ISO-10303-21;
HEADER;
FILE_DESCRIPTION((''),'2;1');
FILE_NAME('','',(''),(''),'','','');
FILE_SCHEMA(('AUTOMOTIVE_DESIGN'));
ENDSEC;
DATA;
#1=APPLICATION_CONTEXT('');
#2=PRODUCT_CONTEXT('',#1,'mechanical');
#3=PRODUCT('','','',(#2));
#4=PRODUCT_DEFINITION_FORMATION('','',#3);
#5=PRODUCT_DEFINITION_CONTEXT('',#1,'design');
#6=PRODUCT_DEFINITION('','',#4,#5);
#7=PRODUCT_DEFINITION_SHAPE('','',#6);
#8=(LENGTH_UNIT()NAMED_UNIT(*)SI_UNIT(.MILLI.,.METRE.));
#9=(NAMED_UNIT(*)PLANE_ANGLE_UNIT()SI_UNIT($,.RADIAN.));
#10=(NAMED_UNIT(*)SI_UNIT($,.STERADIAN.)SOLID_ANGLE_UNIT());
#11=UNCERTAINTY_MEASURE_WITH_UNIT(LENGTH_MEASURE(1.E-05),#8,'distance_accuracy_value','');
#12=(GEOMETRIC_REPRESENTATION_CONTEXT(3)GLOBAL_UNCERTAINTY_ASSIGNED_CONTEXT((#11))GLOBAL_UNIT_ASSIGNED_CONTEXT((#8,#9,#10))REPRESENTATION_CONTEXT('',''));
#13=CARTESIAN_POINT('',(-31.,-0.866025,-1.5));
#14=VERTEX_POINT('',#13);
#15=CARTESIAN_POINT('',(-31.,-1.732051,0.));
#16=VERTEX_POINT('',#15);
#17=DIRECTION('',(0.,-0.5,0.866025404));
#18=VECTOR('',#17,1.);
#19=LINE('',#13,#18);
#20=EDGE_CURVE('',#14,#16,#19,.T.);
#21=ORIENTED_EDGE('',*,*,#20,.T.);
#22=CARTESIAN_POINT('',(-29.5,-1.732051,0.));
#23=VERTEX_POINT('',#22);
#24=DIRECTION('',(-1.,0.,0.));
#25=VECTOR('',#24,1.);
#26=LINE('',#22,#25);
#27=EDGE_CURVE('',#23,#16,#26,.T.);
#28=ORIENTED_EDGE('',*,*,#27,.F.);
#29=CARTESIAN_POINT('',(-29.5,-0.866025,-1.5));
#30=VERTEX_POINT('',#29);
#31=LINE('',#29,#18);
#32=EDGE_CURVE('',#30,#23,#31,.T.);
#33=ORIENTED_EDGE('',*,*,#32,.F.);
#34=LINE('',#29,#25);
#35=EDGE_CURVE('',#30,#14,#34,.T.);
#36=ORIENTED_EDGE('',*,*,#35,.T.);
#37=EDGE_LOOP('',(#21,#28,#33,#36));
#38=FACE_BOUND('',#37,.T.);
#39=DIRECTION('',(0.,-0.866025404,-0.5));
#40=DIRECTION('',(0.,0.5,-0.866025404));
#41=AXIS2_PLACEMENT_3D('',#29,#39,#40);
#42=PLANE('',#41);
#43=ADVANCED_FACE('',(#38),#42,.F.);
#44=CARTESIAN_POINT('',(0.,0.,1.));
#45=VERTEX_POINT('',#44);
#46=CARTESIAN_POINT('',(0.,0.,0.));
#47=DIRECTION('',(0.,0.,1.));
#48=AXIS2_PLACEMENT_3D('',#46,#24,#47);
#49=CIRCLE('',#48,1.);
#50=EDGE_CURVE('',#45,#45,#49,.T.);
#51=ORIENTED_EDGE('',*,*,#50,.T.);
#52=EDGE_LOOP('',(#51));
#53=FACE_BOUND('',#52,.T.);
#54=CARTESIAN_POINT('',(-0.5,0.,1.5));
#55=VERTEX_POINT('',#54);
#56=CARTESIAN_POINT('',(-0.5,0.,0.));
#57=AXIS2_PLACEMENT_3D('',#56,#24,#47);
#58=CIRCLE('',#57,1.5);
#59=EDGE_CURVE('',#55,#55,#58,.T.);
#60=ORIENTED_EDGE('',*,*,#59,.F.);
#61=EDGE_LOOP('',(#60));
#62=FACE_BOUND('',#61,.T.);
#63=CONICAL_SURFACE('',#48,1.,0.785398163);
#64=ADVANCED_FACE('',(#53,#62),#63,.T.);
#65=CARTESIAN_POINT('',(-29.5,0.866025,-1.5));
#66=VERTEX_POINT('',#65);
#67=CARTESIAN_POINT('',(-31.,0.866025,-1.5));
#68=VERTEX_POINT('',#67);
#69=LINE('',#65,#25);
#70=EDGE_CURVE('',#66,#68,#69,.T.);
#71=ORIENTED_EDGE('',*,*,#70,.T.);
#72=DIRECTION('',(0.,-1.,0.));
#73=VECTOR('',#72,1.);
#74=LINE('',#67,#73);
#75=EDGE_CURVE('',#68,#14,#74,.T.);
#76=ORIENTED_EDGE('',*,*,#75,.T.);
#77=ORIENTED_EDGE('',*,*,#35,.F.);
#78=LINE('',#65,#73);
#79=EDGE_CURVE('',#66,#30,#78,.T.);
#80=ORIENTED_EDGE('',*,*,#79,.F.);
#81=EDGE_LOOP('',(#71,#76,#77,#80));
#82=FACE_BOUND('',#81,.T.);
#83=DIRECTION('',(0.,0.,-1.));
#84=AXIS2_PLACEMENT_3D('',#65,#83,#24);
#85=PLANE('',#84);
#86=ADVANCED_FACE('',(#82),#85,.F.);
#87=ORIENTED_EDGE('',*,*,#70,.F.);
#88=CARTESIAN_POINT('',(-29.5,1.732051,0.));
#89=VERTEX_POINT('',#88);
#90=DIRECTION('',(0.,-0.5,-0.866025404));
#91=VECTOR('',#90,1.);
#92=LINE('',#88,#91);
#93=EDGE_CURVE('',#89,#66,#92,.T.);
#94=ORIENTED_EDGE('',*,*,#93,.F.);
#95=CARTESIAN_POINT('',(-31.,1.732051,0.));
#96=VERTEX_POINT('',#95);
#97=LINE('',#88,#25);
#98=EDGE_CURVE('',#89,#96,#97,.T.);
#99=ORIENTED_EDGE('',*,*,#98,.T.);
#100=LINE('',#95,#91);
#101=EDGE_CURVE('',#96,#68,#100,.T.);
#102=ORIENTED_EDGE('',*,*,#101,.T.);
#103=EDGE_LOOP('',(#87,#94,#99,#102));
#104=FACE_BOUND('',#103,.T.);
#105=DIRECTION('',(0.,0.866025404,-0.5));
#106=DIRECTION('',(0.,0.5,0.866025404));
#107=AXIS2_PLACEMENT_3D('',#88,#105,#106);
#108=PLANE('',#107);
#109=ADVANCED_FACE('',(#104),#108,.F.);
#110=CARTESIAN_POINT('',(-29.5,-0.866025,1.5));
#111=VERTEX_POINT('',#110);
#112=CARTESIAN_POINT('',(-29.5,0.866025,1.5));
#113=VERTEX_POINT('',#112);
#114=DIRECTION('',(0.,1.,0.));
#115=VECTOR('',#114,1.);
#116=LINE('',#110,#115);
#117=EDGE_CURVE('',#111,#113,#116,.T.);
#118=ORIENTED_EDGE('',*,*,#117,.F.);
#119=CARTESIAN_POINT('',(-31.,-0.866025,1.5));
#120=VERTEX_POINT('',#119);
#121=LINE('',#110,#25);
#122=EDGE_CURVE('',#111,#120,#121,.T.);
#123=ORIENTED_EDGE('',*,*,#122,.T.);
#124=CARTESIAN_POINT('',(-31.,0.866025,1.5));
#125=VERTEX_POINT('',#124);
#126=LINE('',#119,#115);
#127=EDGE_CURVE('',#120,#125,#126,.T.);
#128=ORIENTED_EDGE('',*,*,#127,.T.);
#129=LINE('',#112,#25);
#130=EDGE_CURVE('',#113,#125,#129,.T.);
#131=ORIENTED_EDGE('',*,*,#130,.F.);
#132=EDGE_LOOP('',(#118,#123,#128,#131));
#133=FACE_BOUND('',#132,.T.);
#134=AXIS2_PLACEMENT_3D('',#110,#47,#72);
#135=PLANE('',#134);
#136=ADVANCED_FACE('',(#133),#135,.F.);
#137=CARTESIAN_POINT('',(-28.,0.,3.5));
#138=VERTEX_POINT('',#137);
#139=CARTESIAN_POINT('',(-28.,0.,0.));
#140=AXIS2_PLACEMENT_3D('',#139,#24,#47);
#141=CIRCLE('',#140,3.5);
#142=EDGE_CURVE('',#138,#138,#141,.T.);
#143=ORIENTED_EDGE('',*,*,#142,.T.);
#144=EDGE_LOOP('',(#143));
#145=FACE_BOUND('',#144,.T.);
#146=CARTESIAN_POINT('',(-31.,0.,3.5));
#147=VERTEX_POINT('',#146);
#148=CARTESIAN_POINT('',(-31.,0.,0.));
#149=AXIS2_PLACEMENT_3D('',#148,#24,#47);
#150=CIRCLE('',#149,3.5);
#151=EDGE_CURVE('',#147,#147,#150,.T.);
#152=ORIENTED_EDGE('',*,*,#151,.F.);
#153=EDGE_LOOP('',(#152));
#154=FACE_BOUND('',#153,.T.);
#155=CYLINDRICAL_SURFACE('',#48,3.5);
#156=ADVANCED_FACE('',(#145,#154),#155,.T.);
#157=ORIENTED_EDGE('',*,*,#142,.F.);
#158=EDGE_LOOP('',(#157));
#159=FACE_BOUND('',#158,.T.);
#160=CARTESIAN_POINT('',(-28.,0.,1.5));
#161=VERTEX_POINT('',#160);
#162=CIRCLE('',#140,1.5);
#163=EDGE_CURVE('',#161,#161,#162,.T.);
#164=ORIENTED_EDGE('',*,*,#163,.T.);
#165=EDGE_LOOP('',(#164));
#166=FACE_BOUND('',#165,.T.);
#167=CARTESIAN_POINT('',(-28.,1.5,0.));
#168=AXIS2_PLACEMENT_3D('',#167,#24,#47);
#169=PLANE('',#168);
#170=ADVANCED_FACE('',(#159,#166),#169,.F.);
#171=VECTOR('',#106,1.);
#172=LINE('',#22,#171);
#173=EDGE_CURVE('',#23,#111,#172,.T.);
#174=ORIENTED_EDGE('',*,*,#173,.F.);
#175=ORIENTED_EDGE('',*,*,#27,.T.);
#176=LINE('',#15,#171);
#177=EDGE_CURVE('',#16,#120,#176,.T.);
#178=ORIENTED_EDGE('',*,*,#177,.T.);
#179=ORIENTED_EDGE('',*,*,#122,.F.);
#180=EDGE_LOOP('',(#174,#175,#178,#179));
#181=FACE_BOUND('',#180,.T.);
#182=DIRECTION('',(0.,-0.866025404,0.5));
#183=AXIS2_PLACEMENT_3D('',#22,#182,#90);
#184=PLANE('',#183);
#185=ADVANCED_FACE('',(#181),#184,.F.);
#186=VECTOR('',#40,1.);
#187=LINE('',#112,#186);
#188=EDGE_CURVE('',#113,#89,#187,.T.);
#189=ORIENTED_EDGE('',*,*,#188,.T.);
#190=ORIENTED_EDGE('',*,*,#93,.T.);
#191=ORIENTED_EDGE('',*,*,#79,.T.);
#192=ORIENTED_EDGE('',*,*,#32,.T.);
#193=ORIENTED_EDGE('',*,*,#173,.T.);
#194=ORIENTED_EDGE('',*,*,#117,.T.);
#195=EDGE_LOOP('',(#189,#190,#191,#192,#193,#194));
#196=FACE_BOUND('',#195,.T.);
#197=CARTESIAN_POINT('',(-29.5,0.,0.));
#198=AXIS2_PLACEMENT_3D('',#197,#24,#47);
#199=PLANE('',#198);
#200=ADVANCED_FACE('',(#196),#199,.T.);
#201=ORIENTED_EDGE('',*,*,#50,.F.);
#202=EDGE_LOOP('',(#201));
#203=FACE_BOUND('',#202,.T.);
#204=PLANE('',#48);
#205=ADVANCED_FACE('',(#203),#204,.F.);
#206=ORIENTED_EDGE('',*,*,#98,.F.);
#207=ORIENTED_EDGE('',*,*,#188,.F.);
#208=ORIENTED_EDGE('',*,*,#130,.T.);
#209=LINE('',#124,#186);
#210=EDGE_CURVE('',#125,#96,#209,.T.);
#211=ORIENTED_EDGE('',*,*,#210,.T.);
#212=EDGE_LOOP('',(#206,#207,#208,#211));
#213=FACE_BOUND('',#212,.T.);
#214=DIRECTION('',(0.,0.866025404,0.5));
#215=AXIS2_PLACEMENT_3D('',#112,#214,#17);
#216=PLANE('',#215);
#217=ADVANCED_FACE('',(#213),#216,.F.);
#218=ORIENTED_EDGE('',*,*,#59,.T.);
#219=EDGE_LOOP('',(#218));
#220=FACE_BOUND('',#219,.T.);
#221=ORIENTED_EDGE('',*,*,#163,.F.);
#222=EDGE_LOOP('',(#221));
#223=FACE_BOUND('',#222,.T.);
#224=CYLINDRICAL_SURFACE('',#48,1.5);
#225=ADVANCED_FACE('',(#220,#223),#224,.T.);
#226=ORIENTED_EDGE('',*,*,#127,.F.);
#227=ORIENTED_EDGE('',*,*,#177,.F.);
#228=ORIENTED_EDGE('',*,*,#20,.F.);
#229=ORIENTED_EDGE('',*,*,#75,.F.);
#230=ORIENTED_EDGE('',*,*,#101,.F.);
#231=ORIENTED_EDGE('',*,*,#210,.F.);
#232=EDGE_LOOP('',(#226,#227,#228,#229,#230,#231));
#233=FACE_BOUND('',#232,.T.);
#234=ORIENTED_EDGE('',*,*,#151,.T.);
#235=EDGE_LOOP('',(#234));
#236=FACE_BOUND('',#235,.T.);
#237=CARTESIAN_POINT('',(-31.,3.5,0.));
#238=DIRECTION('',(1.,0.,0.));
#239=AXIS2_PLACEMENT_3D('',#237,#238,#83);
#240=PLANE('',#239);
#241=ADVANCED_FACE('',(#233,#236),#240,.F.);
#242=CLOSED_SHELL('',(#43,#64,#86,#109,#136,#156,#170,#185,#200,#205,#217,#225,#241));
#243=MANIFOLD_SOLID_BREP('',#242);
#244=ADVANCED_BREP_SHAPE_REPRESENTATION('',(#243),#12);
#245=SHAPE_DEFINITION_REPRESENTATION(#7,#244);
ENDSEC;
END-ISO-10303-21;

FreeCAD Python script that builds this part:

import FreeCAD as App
import Part
import Sketcher

V = App.Vector
Q = App.Units.Quantity

doc = App.newDocument("Part")
params = doc.addObject("Spreadsheet::Sheet", "Params")
for row, (alias, value) in enumerate([
    ("sketch1_width", "3 mm"),
    ("sketch1_width2", "31 mm"),
    ("sketch1_height", "1 mm"),
    ("sketch1_height2", "2 mm"),
    ("sketch1_width3", "27.5 mm"),
    ("revolution_angle", "360 deg"),
    ("pocket1_length", "1.5 mm"),
], start=1):
    params.set(f"A{row}", alias)
    params.set(f"B{row}", "=" + value)
    params.setAlias(f"B{row}", alias)

body = doc.addObject("PartDesign::Body", "Body")

sketch1 = body.newObject("Sketcher::SketchObject", "Sketch")
sketch1.AttachmentSupport = (doc.getObject("XY_Plane"), [""])
sketch1.MapMode = "FlatFace"
sketch1.addGeometry([
    Part.LineSegment(V(0, 0, 0), V(0, 1, 0)),
    Part.LineSegment(V(0, 1, 0), V(-0.5, 1.5, 0)),
    Part.LineSegment(V(-0.5, 1.5, 0), V(-28, 1.5, 0)),
    Part.LineSegment(V(-28, 1.5, 0), V(-28, 3.5, 0)),
    Part.LineSegment(V(-28, 3.5, 0), V(-31, 3.5, 0)),
    Part.LineSegment(V(-31, 3.5, 0), V(-31, 0, 0)),
    Part.LineSegment(V(-31, 0, 0), V(0, 0, 0)),
], False)
sketch1.addConstraint([
    Sketcher.Constraint("Coincident", 0, 2, 1, 1),
    Sketcher.Constraint("Coincident", 1, 2, 2, 1),
    Sketcher.Constraint("Coincident", 2, 2, 3, 1),
    Sketcher.Constraint("Coincident", 3, 2, 4, 1),
    Sketcher.Constraint("Coincident", 4, 2, 5, 1),
    Sketcher.Constraint("Coincident", 5, 2, 6, 1),
    Sketcher.Constraint("Coincident", 6, 2, 0, 1),
    Sketcher.Constraint("Vertical", 0),
    Sketcher.Constraint("Horizontal", 2),
    Sketcher.Constraint("Vertical", 3),
    Sketcher.Constraint("Horizontal", 4),
    Sketcher.Constraint("Vertical", 5),
    Sketcher.Constraint("Horizontal", 6),
    Sketcher.Constraint("Coincident", 6, 2, -1, 1),
    Sketcher.Constraint("DistanceX", 4, 2, 4, 1, Q("3 mm")),
    Sketcher.Constraint("DistanceX", 6, 1, 6, 2, Q("31 mm")),
    Sketcher.Constraint("DistanceY", 0, 1, 0, 2, Q("1 mm")),
    Sketcher.Constraint("DistanceY", 3, 1, 3, 2, Q("2 mm")),
    Sketcher.Constraint("Angle", 1, Q("135 deg")),
    Sketcher.Constraint("DistanceX", 2, 2, 2, 1, Q("27.5 mm")),
])
sketch1.setExpression("Constraints[14]", "Params.sketch1_width")
sketch1.setExpression("Constraints[15]", "Params.sketch1_width2")
sketch1.setExpression("Constraints[16]", "Params.sketch1_height")
sketch1.setExpression("Constraints[17]", "Params.sketch1_height2")
sketch1.setExpression("Constraints[19]", "Params.sketch1_width3")
revolution = body.newObject("PartDesign::Revolution", "Revolution")
revolution.Profile = sketch1
revolution.ReferenceAxis = (sketch1, ["H_Axis"])
revolution.setExpression("Angle", "Params.revolution_angle")

sketch2 = body.newObject("Sketcher::SketchObject", "Sketch001")
sketch2.AttachmentSupport = (doc.getObject("YZ_Plane"), [""])
sketch2.MapMode = "FlatFace"
sketch2.AttachmentOffset = App.Placement(V(0, 0, -31), App.Rotation())
sketch2.addGeometry([
    Part.LineSegment(V(1.7, 0, 0), V(0.9, -1.5, 0)),
    Part.LineSegment(V(0.9, -1.5, 0), V(-0.9, -1.5, 0)),
    Part.LineSegment(V(-0.9, -1.5, 0), V(-1.7, 0, 0)),
    Part.LineSegment(V(-1.7, 0, 0), V(-0.9, 1.5, 0)),
    Part.LineSegment(V(-0.9, 1.5, 0), V(0.9, 1.5, 0)),
    Part.LineSegment(V(0.9, 1.5, 0), V(1.7, 0, 0)),
], False)
sketch2.addConstraint([
    Sketcher.Constraint("Coincident", 0, 2, 1, 1),
    Sketcher.Constraint("Coincident", 1, 2, 2, 1),
    Sketcher.Constraint("Coincident", 2, 2, 3, 1),
    Sketcher.Constraint("Coincident", 3, 2, 4, 1),
    Sketcher.Constraint("Coincident", 4, 2, 5, 1),
    Sketcher.Constraint("Coincident", 5, 2, 0, 1),
    Sketcher.Constraint("Horizontal", 1),
    Sketcher.Constraint("Horizontal", 4),
    Sketcher.Constraint("Symmetric", 0, 2, 3, 2, -1, 1),
    Sketcher.Constraint("Symmetric", 2, 2, 5, 2, -1, 1),
    Sketcher.Constraint("PointOnObject", 2, 2, -1),
    Sketcher.Constraint("Parallel", 2, 5),
    Sketcher.Constraint("Vertical", 1, 2, 3, 2),
    Sketcher.Constraint("Angle", 0, Q("-120 deg")),
    Sketcher.Constraint("DistanceY", 1, 2, 3, 2, Q("3 mm")),
    Sketcher.Constraint("DistanceX", 1, 2, 1, 1, Q("1.732051 mm")),
])
pocket1 = body.newObject("PartDesign::Pocket", "Pocket")
pocket1.Profile = sketch2
pocket1.setExpression("Length", "Params.pocket1_length")
pocket1.Reversed = True

doc.recompute()
